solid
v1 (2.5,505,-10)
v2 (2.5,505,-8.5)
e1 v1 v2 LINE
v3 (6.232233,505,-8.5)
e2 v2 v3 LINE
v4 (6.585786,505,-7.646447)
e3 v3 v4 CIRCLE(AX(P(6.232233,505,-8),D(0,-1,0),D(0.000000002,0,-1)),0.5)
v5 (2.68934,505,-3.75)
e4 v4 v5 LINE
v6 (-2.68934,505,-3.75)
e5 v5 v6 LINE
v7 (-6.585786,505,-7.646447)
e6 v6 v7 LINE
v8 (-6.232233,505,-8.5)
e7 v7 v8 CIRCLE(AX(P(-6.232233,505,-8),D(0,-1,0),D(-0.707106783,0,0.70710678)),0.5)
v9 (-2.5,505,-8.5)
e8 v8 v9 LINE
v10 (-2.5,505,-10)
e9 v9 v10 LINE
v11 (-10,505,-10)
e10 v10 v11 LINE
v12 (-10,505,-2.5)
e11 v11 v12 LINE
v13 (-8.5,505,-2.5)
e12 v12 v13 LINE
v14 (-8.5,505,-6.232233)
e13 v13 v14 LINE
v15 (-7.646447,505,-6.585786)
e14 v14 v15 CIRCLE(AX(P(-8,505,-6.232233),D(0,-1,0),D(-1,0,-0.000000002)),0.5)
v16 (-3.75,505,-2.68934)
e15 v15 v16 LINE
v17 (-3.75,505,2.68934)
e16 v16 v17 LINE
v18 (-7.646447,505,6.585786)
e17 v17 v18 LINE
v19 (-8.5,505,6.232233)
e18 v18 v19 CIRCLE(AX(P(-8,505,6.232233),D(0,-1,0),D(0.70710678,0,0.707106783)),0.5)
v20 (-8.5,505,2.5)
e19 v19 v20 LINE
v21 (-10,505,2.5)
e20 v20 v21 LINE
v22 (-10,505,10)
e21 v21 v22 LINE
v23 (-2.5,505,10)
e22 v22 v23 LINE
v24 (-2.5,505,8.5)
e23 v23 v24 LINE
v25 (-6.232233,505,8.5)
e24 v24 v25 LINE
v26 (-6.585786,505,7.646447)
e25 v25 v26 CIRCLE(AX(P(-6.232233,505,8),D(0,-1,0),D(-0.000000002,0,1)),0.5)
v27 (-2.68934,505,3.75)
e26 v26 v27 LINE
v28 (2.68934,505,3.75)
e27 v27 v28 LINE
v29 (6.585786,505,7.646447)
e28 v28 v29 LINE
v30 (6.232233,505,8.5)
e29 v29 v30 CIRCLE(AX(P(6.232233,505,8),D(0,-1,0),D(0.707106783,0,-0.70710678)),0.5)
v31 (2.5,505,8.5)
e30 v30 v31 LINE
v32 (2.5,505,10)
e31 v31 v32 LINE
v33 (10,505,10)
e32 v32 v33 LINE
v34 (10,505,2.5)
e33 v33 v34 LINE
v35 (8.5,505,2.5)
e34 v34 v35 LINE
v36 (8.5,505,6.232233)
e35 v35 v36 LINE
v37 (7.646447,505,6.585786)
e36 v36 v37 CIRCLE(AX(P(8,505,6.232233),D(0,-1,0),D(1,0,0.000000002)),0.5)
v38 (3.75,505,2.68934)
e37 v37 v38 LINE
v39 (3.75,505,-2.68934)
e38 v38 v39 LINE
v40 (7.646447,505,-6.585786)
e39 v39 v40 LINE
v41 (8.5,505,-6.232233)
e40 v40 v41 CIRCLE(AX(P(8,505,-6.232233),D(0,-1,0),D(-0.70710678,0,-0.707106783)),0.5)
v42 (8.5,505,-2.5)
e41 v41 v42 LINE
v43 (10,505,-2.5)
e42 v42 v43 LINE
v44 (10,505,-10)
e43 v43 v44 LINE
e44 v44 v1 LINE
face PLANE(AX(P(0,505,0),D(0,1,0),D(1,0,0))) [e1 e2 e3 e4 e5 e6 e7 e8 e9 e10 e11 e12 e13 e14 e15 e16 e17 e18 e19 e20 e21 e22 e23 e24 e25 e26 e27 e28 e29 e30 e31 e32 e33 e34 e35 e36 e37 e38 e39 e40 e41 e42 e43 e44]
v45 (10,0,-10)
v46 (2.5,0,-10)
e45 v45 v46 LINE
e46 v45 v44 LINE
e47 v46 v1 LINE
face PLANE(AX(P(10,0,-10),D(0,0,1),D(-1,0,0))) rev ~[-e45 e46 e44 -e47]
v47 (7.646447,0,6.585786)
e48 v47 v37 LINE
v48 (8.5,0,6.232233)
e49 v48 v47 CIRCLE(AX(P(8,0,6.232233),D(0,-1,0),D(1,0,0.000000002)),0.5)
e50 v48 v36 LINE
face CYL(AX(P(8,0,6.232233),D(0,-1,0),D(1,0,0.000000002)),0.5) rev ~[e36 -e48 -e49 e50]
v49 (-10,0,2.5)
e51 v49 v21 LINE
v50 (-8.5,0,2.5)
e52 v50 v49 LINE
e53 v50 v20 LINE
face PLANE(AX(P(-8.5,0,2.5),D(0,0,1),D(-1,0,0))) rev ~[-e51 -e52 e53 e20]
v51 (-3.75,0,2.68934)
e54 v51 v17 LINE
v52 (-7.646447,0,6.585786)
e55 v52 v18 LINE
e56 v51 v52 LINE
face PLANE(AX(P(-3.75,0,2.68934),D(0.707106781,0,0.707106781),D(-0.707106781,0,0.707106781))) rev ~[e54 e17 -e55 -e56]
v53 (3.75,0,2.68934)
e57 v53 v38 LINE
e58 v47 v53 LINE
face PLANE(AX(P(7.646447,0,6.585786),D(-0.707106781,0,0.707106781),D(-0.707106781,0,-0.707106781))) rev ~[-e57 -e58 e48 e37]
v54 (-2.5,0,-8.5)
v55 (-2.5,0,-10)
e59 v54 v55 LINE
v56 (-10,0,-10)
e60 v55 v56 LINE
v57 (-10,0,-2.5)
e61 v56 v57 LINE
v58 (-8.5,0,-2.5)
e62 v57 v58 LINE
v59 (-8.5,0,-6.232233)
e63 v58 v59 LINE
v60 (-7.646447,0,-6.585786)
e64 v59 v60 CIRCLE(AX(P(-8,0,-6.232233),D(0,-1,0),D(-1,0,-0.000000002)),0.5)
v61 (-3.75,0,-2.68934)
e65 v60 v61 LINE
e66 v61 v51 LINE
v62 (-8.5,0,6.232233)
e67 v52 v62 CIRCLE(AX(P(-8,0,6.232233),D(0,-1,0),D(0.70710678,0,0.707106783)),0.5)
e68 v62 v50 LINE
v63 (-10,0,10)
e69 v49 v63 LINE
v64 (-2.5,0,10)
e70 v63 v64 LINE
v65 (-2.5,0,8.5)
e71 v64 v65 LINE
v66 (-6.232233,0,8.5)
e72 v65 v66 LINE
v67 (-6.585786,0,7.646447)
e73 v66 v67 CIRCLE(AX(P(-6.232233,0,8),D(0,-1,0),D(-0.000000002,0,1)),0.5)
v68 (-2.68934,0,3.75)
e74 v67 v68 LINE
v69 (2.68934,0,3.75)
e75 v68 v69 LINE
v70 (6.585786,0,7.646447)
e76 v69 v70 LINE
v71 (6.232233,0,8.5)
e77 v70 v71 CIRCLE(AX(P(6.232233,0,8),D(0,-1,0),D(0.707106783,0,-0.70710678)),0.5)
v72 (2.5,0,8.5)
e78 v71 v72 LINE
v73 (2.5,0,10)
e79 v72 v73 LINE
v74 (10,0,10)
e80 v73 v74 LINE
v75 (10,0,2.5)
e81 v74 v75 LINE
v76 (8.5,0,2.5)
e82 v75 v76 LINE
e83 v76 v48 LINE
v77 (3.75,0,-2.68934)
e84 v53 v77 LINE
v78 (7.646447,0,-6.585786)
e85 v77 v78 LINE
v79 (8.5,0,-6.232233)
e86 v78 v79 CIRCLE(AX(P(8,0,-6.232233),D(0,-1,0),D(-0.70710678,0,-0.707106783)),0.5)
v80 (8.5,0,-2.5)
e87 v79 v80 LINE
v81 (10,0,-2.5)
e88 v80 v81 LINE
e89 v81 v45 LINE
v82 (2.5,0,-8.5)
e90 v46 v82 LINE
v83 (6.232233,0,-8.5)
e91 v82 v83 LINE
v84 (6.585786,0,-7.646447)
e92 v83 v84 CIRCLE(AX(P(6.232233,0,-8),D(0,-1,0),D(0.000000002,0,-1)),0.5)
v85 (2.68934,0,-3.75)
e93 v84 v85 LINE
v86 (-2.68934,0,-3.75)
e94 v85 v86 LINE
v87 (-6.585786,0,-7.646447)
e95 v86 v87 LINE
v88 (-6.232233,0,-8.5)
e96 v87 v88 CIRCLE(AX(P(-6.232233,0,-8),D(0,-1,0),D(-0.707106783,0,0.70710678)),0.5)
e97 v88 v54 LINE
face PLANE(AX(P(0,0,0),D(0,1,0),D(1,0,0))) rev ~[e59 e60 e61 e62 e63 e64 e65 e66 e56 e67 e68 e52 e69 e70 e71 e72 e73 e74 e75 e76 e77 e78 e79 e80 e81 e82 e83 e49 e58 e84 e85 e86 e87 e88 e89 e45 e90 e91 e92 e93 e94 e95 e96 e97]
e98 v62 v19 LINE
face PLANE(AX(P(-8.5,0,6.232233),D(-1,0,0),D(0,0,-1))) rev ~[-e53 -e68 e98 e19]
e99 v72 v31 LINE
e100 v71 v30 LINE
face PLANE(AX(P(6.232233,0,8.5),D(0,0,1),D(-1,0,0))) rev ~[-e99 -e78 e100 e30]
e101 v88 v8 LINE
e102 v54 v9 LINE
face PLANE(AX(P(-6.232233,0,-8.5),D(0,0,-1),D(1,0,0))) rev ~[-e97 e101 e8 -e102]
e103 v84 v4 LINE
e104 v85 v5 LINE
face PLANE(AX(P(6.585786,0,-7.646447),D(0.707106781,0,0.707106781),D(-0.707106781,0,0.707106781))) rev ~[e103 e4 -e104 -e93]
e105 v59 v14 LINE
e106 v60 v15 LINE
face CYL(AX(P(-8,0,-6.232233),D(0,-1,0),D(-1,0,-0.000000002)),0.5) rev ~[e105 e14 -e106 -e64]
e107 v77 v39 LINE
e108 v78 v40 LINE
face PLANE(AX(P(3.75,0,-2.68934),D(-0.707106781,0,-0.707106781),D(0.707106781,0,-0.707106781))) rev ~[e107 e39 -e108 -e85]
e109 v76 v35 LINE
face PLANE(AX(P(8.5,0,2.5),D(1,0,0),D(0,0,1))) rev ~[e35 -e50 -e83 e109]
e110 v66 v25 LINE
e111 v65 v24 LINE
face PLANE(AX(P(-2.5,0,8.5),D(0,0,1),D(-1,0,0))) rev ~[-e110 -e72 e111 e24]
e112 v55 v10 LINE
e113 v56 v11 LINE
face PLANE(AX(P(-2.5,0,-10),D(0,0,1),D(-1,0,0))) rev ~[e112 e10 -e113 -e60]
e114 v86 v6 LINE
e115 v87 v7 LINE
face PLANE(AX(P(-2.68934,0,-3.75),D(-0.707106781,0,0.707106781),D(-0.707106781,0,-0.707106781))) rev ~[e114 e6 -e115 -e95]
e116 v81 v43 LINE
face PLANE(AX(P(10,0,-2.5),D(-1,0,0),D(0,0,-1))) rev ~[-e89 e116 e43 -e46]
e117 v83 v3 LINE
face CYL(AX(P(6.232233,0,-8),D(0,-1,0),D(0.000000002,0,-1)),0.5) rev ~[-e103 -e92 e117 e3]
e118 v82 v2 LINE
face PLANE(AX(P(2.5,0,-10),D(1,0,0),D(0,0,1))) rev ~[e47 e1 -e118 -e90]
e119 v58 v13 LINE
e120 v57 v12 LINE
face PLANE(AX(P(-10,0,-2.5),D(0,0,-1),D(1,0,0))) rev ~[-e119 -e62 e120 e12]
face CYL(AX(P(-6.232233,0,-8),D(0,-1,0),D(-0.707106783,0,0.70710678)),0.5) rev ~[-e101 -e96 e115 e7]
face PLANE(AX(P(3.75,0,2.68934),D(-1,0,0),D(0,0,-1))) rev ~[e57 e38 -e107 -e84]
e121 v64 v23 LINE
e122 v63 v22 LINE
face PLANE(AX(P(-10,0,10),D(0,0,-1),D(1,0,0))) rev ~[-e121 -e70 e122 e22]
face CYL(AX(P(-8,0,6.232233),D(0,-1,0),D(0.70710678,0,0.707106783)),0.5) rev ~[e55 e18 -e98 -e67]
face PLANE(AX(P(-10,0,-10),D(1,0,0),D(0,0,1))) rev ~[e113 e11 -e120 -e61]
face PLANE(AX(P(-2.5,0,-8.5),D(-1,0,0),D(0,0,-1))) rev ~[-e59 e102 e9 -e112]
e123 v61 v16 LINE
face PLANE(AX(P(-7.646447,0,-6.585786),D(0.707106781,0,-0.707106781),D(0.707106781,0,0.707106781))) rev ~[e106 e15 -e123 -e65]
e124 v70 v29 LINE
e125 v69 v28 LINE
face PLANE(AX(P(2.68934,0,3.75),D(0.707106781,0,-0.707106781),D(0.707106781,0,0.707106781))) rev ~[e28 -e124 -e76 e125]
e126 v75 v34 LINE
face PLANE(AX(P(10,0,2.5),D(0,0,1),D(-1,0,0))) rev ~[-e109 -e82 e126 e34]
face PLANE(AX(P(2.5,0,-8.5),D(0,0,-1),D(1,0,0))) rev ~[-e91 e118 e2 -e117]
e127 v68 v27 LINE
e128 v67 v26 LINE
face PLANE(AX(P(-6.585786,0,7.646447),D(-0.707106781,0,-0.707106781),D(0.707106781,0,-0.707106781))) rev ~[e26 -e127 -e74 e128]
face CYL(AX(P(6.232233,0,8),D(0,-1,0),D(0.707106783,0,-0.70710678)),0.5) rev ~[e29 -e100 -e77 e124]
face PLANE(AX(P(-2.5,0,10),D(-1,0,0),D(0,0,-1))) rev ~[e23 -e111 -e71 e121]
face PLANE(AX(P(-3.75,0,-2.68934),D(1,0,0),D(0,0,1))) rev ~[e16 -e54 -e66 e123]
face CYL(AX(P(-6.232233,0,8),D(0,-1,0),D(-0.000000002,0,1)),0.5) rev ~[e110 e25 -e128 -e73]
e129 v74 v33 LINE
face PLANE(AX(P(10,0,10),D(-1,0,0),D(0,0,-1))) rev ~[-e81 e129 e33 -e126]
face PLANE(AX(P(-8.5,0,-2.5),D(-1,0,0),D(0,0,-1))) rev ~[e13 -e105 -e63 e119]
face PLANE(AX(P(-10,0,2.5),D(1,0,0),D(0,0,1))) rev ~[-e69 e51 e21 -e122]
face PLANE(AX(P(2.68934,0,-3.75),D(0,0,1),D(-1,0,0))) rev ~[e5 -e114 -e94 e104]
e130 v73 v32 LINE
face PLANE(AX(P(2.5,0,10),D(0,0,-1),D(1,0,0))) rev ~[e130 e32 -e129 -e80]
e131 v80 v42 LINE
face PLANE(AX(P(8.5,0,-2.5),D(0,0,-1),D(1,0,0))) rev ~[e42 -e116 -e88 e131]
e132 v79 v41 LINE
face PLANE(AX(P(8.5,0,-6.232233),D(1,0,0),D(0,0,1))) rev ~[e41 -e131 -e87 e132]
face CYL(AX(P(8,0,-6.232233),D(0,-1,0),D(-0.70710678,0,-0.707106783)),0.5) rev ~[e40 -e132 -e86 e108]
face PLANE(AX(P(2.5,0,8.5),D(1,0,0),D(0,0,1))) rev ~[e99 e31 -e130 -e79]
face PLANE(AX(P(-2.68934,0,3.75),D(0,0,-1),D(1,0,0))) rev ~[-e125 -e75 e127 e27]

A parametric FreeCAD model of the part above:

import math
import FreeCAD as App
import Part
import Sketcher
Q = App.Units.Quantity

doc = App.newDocument("Part")
body = doc.addObject("PartDesign::Body", "Body")

# Sketch on XZ plane
sketch1 = doc.addObject("Sketcher::SketchObject", "Sketch")
body.addObject(sketch1)
sketch1.AttachmentSupport = (doc.XZ_Plane, [""])
sketch1.MapMode = "FlatFace"
sketch1.addGeometry(Part.LineSegment(App.Vector(-10, 2.5, 0), App.Vector(-10, 10, 0)), False)
sketch1.addGeometry(Part.LineSegment(App.Vector(-10, 10, 0), App.Vector(-2.5, 10, 0)), False)
sketch1.addGeometry(Part.LineSegment(App.Vector(-2.5, 10, 0), App.Vector(-2.5, 8.5, 0)), False)
sketch1.addGeometry(Part.LineSegment(App.Vector(-2.5, 8.5, 0), App.Vector(-6.2, 8.5, 0)), False)
sketch1.addGeometry(Part.ArcOfCircle(Part.Circle(App.Vector(-6.2, 8, 0), App.Vector(0, 0, 1), 0.5), math.radians(90), math.radians(225)), False)
sketch1.addGeometry(Part.LineSegment(App.Vector(-6.6, 7.6, 0), App.Vector(-2.7, 3.8, 0)), False)
sketch1.addGeometry(Part.LineSegment(App.Vector(-2.7, 3.8, 0), App.Vector(2.7, 3.8, 0)), False)
sketch1.addGeometry(Part.LineSegment(App.Vector(2.7, 3.8, 0), App.Vector(6.6, 7.6, 0)), False)
sketch1.addGeometry(Part.ArcOfCircle(Part.Circle(App.Vector(6.2, 8, 0), App.Vector(0, 0, 1), 0.5), math.radians(-45), math.radians(90)), False)
sketch1.addGeometry(Part.LineSegment(App.Vector(6.2, 8.5, 0), App.Vector(2.5, 8.5, 0)), False)
sketch1.addGeometry(Part.LineSegment(App.Vector(2.5, 8.5, 0), App.Vector(2.5, 10, 0)), False)
sketch1.addGeometry(Part.LineSegment(App.Vector(2.5, 10, 0), App.Vector(10, 10, 0)), False)
sketch1.addGeometry(Part.LineSegment(App.Vector(10, 10, 0), App.Vector(10, 2.5, 0)), False)
sketch1.addGeometry(Part.LineSegment(App.Vector(10, 2.5, 0), App.Vector(8.5, 2.5, 0)), False)
sketch1.addGeometry(Part.LineSegment(App.Vector(8.5, 2.5, 0), App.Vector(8.5, 6.2, 0)), False)
sketch1.addGeometry(Part.ArcOfCircle(Part.Circle(App.Vector(8, 6.2, 0), App.Vector(0, 0, 1), 0.5), math.radians(0), math.radians(135)), False)
sketch1.addGeometry(Part.LineSegment(App.Vector(7.6, 6.6, 0), App.Vector(3.8, 2.7, 0)), False)
sketch1.addGeometry(Part.LineSegment(App.Vector(3.8, 2.7, 0), App.Vector(3.8, -2.7, 0)), False)
sketch1.addGeometry(Part.LineSegment(App.Vector(3.8, -2.7, 0), App.Vector(7.6, -6.6, 0)), False)
sketch1.addGeometry(Part.ArcOfCircle(Part.Circle(App.Vector(8, -6.2, 0), App.Vector(0, 0, 1), 0.5), math.radians(-135), math.radians(0)), False)
sketch1.addGeometry(Part.LineSegment(App.Vector(8.5, -6.2, 0), App.Vector(8.5, -2.5, 0)), False)
sketch1.addGeometry(Part.LineSegment(App.Vector(8.5, -2.5, 0), App.Vector(10, -2.5, 0)), False)
sketch1.addGeometry(Part.LineSegment(App.Vector(10, -2.5, 0), App.Vector(10, -10, 0)), False)
sketch1.addGeometry(Part.LineSegment(App.Vector(10, -10, 0), App.Vector(2.5, -10, 0)), False)
sketch1.addGeometry(Part.LineSegment(App.Vector(2.5, -10, 0), App.Vector(2.5, -8.5, 0)), False)
sketch1.addGeometry(Part.LineSegment(App.Vector(2.5, -8.5, 0), App.Vector(6.2, -8.5, 0)), False)
sketch1.addGeometry(Part.ArcOfCircle(Part.Circle(App.Vector(6.2, -8, 0), App.Vector(0, 0, 1), 0.5), math.radians(-90), math.radians(45)), False)
sketch1.addGeometry(Part.LineSegment(App.Vector(6.6, -7.6, 0), App.Vector(2.7, -3.8, 0)), False)
sketch1.addGeometry(Part.LineSegment(App.Vector(2.7, -3.8, 0), App.Vector(-2.7, -3.8, 0)), False)
sketch1.addGeometry(Part.LineSegment(App.Vector(-2.7, -3.8, 0), App.Vector(-6.6, -7.6, 0)), False)
sketch1.addGeometry(Part.ArcOfCircle(Part.Circle(App.Vector(-6.2, -8, 0), App.Vector(0, 0, 1), 0.5), math.radians(135), math.radians(270)), False)
sketch1.addGeometry(Part.LineSegment(App.Vector(-6.2, -8.5, 0), App.Vector(-2.5, -8.5, 0)), False)
sketch1.addGeometry(Part.LineSegment(App.Vector(-2.5, -8.5, 0), App.Vector(-2.5, -10, 0)), False)
sketch1.addGeometry(Part.LineSegment(App.Vector(-2.5, -10, 0), App.Vector(-10, -10, 0)), False)
sketch1.addGeometry(Part.LineSegment(App.Vector(-10, -10, 0), App.Vector(-10, -2.5, 0)), False)
sketch1.addGeometry(Part.LineSegment(App.Vector(-10, -2.5, 0), App.Vector(-8.5, -2.5, 0)), False)
sketch1.addGeometry(Part.LineSegment(App.Vector(-8.5, -2.5, 0), App.Vector(-8.5, -6.2, 0)), False)
sketch1.addGeometry(Part.ArcOfCircle(Part.Circle(App.Vector(-8, -6.2, 0), App.Vector(0, 0, 1), 0.5), math.radians(-180), math.radians(-45)), False)
sketch1.addGeometry(Part.LineSegment(App.Vector(-7.6, -6.6, 0), App.Vector(-3.8, -2.7, 0)), False)
sketch1.addGeometry(Part.LineSegment(App.Vector(-3.8, -2.7, 0), App.Vector(-3.8, 2.7, 0)), False)
sketch1.addGeometry(Part.LineSegment(App.Vector(-3.8, 2.7, 0), App.Vector(-7.6, 6.6, 0)), False)
sketch1.addGeometry(Part.ArcOfCircle(Part.Circle(App.Vector(-8, 6.2, 0), App.Vector(0, 0, 1), 0.5), math.radians(45), math.radians(180)), False)
sketch1.addGeometry(Part.LineSegment(App.Vector(-8.5, 6.2, 0), App.Vector(-8.5, 2.5, 0)), False)
sketch1.addGeometry(Part.LineSegment(App.Vector(-8.5, 2.5, 0), App.Vector(-10, 2.5, 0)), False)
sketch1.addConstraint(Sketcher.Constraint("Coincident", 0, 2, 1, 1))
sketch1.addConstraint(Sketcher.Constraint("Coincident", 1, 2, 2, 1))
sketch1.addConstraint(Sketcher.Constraint("Coincident", 2, 2, 3, 1))
sketch1.addConstraint(Sketcher.Constraint("Tangent", 3, 2, 4, 1))
sketch1.addConstraint(Sketcher.Constraint("Tangent", 4, 2, 5, 1))
sketch1.addConstraint(Sketcher.Constraint("Coincident", 5, 2, 6, 1))
sketch1.addConstraint(Sketcher.Constraint("Coincident", 6, 2, 7, 1))
sketch1.addConstraint(Sketcher.Constraint("Tangent", 7, 2, 8, 1))
sketch1.addConstraint(Sketcher.Constraint("Tangent", 8, 2, 9, 1))
sketch1.addConstraint(Sketcher.Constraint("Coincident", 9, 2, 10, 1))
sketch1.addConstraint(Sketcher.Constraint("Coincident", 10, 2, 11, 1))
sketch1.addConstraint(Sketcher.Constraint("Coincident", 11, 2, 12, 1))
sketch1.addConstraint(Sketcher.Constraint("Coincident", 12, 2, 13, 1))
sketch1.addConstraint(Sketcher.Constraint("Coincident", 13, 2, 14, 1))
sketch1.addConstraint(Sketcher.Constraint("Tangent", 14, 2, 15, 1))
sketch1.addConstraint(Sketcher.Constraint("Tangent", 15, 2, 16, 1))
sketch1.addConstraint(Sketcher.Constraint("Coincident", 16, 2, 17, 1))
sketch1.addConstraint(Sketcher.Constraint("Coincident", 17, 2, 18, 1))
sketch1.addConstraint(Sketcher.Constraint("Tangent", 18, 2, 19, 1))
sketch1.addConstraint(Sketcher.Constraint("Tangent", 19, 2, 20, 1))
sketch1.addConstraint(Sketcher.Constraint("Coincident", 20, 2, 21, 1))
sketch1.addConstraint(Sketcher.Constraint("Coincident", 21, 2, 22, 1))
sketch1.addConstraint(Sketcher.Constraint("Coincident", 22, 2, 23, 1))
sketch1.addConstraint(Sketcher.Constraint("Coincident", 23, 2, 24, 1))
sketch1.addConstraint(Sketcher.Constraint("Coincident", 24, 2, 25, 1))
sketch1.addConstraint(Sketcher.Constraint("Tangent", 25, 2, 26, 1))
sketch1.addConstraint(Sketcher.Constraint("Tangent", 26, 2, 27, 1))
sketch1.addConstraint(Sketcher.Constraint("Coincident", 27, 2, 28, 1))
sketch1.addConstraint(Sketcher.Constraint("Coincident", 28, 2, 29, 1))
sketch1.addConstraint(Sketcher.Constraint("Tangent", 29, 2, 30, 1))
sketch1.addConstraint(Sketcher.Constraint("Tangent", 30, 2, 31, 1))
sketch1.addConstraint(Sketcher.Constraint("Coincident", 31, 2, 32, 1))
sketch1.addConstraint(Sketcher.Constraint("Coincident", 32, 2, 33, 1))
sketch1.addConstraint(Sketcher.Constraint("Coincident", 33, 2, 34, 1))
sketch1.addConstraint(Sketcher.Constraint("Coincident", 34, 2, 35, 1))
sketch1.addConstraint(Sketcher.Constraint("Coincident", 35, 2, 36, 1))
sketch1.addConstraint(Sketcher.Constraint("Tangent", 36, 2, 37, 1))
sketch1.addConstraint(Sketcher.Constraint("Tangent", 37, 2, 38, 1))
sketch1.addConstraint(Sketcher.Constraint("Coincident", 38, 2, 39, 1))
sketch1.addConstraint(Sketcher.Constraint("Coincident", 39, 2, 40, 1))
sketch1.addConstraint(Sketcher.Constraint("Tangent", 40, 2, 41, 1))
sketch1.addConstraint(Sketcher.Constraint("Tangent", 41, 2, 42, 1))
sketch1.addConstraint(Sketcher.Constraint("Coincident", 42, 2, 43, 1))
sketch1.addConstraint(Sketcher.Constraint("Coincident", 43, 2, 0, 1))
sketch1.addConstraint(Sketcher.Constraint("Vertical", 0))
sketch1.addConstraint(Sketcher.Constraint("Horizontal", 1))
sketch1.addConstraint(Sketcher.Constraint("Vertical", 2))
sketch1.addConstraint(Sketcher.Constraint("Horizontal", 3))
sketch1.addConstraint(Sketcher.Constraint("Horizontal", 6))
sketch1.addConstraint(Sketcher.Constraint("Horizontal", 9))
sketch1.addConstraint(Sketcher.Constraint("Vertical", 10))
sketch1.addConstraint(Sketcher.Constraint("Horizontal", 11))
sketch1.addConstraint(Sketcher.Constraint("Vertical", 12))
sketch1.addConstraint(Sketcher.Constraint("Horizontal", 13))
sketch1.addConstraint(Sketcher.Constraint("Vertical", 14))
sketch1.addConstraint(Sketcher.Constraint("Vertical", 17))
sketch1.addConstraint(Sketcher.Constraint("Vertical", 20))
sketch1.addConstraint(Sketcher.Constraint("Horizontal", 21))
sketch1.addConstraint(Sketcher.Constraint("Vertical", 22))
sketch1.addConstraint(Sketcher.Constraint("Horizontal", 23))
sketch1.addConstraint(Sketcher.Constraint("Vertical", 24))
sketch1.addConstraint(Sketcher.Constraint("Horizontal", 25))
sketch1.addConstraint(Sketcher.Constraint("Horizontal", 28))
sketch1.addConstraint(Sketcher.Constraint("Horizontal", 31))
sketch1.addConstraint(Sketcher.Constraint("Vertical", 32))
sketch1.addConstraint(Sketcher.Constraint("Horizontal", 33))
sketch1.addConstraint(Sketcher.Constraint("Vertical", 34))
sketch1.addConstraint(Sketcher.Constraint("Horizontal", 35))
sketch1.addConstraint(Sketcher.Constraint("Vertical", 36))
sketch1.addConstraint(Sketcher.Constraint("Vertical", 39))
sketch1.addConstraint(Sketcher.Constraint("Vertical", 42))
sketch1.addConstraint(Sketcher.Constraint("Horizontal", 43))
sketch1.addConstraint(Sketcher.Constraint("Equal", 4, 8))
sketch1.addConstraint(Sketcher.Constraint("Equal", 8, 15))
sketch1.addConstraint(Sketcher.Constraint("Equal", 15, 19))
sketch1.addConstraint(Sketcher.Constraint("Equal", 19, 26))
sketch1.addConstraint(Sketcher.Constraint("Equal", 26, 30))
sketch1.addConstraint(Sketcher.Constraint("Equal", 30, 37))
sketch1.addConstraint(Sketcher.Constraint("Equal", 37, 41))
sketch1.addConstraint(Sketcher.Constraint("Symmetric", 4, 3, 26, 3, -1, 1))
sketch1.addConstraint(Sketcher.Constraint("Symmetric", 8, 3, 30, 3, -1, 1))
sketch1.addConstraint(Sketcher.Constraint("Symmetric", 15, 3, 37, 3, -1, 1))
sketch1.addConstraint(Sketcher.Constraint("Symmetric", 19, 3, 41, 3, -1, 1))
sketch1.addConstraint(Sketcher.Constraint("Symmetric", 0, 2, 22, 2, -1, 1))
sketch1.addConstraint(Sketcher.Constraint("Symmetric", 5, 2, 27, 2, -1, 1))
sketch1.addConstraint(Sketcher.Constraint("Symmetric", 10, 2, 32, 2, -1, 1))
sketch1.addConstraint(Sketcher.Constraint("Symmetric", 12, 2, 34, 2, -1, 1))
sketch1.addConstraint(Sketcher.Constraint("Symmetric", 16, 2, 38, 2, -1, 1))
sketch1.addConstraint(Sketcher.Constraint("Symmetric", 4, 3, 8, 3, -2))
sketch1.addConstraint(Sketcher.Constraint("Symmetric", 19, 3, 37, 3, -2))
sketch1.addConstraint(Sketcher.Constraint("Symmetric", 1, 2, 10, 2, -2))
sketch1.addConstraint(Sketcher.Constraint("Symmetric", 21, 2, 34, 2, -2))
sketch1.addConstraint(Sketcher.Constraint("Perpendicular", 5, 7))
sketch1.addConstraint(Sketcher.Constraint("Parallel", 7, 16))
sketch1.addConstraint(Sketcher.Constraint("Perpendicular", 16, 18))
sketch1.addConstraint(Sketcher.Constraint("Perpendicular", 27, 29))
sketch1.addConstraint(Sketcher.Constraint("Perpendicular", 38, 40))
sketch1.addConstraint(Sketcher.Constraint("Horizontal", 4, 2, 7, 2))
sketch1.addConstraint(Sketcher.Constraint("Horizontal", 13, 2, 42, 2))
sketch1.addConstraint(Sketcher.Constraint("Vertical", 10, 2, 23, 2))
sketch1.addConstraint(Sketcher.Constraint("Equal", 33, 0))
sketch1.addConstraint(Sketcher.Constraint("Equal", 43, 2))
sketch1.addConstraint(Sketcher.Constraint("Equal", 31, 14))
sketch1.addConstraint(Sketcher.Constraint("Equal", 28, 17))
sketch1.addConstraint(Sketcher.Constraint("Equal", 7, 16))
sketch1.addConstraint(Sketcher.Constraint("Radius", 4, Q("0.5 mm")))
sketch1.addConstraint(Sketcher.Constraint("DistanceX", 1, 1, 1, 2, Q("7.5 mm")))
sketch1.addConstraint(Sketcher.Constraint("DistanceX", 13, 2, 13, 1, Q("1.5 mm")))
sketch1.addConstraint(Sketcher.Constraint("DistanceY", -1, 1, 4, 3, Q("8 mm")))
sketch1.addConstraint(Sketcher.Constraint("DistanceY", -1, 1, 5, 2, Q("3.75 mm")))
sketch1.addConstraint(Sketcher.Constraint("DistanceX", 6, 1, 6, 2, Q("5.37868 mm")))
pad1 = doc.addObject("PartDesign::Pad", "Pad")
body.addObject(pad1)
pad1.Profile = sketch1
pad1.Length = 505
pad1.Reversed = True

doc.recompute()
